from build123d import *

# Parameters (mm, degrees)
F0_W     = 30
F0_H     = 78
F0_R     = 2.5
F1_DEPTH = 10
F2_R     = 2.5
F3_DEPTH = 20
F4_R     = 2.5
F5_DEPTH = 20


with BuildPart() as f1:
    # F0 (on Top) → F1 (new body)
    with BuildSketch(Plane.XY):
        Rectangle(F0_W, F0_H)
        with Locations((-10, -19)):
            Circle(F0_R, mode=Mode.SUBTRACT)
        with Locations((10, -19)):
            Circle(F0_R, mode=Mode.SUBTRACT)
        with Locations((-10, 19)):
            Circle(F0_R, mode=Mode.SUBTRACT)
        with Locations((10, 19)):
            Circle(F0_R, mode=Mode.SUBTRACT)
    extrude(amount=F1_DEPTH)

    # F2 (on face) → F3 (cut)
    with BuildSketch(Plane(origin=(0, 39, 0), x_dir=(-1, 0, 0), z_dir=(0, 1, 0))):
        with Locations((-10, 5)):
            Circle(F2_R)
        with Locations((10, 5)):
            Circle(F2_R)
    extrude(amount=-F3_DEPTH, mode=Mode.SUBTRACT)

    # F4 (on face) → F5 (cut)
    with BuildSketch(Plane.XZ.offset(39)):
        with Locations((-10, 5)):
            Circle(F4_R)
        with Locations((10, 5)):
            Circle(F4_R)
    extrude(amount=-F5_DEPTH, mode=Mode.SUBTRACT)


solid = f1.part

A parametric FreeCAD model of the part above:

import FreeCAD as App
import Part
import Sketcher
from FreeCAD import Vector
Q = App.Units.Quantity


def add_polygon(sketch, points):
    """Adds a closed chain of lines whose ends are joined by coincident constraints."""
    first, n = sketch.GeometryCount, len(points)
    for a, b in zip(points, points[1:] + points[:1]):
        sketch.addGeometry(Part.LineSegment(App.Vector(*a, 0), App.Vector(*b, 0)), False)
    for i in range(n):
        sketch.addConstraint(Sketcher.Constraint("Coincident", first + i, 2, first + (i + 1) % n, 1))

doc = App.newDocument("Part")
body = doc.addObject("PartDesign::Body", "Body")

sketch1 = body.newObject("Sketcher::SketchObject", "Sketch")
sketch1.AttachmentSupport = (doc.getObject("XY_Plane"), [""])
sketch1.MapMode = "FlatFace"
add_polygon(sketch1, [(-15, 39), (-15, -39), (15, -39), (15, 39)])
sketch1.addGeometry(Part.Circle(Vector(-10, -19, 0), Vector(0, 0, 1), 2.5), False)
sketch1.addGeometry(Part.Circle(Vector(10, -19, 0), Vector(0, 0, 1), 2.5), False)
sketch1.addGeometry(Part.Circle(Vector(-10, 19, 0), Vector(0, 0, 1), 2.5), False)
sketch1.addGeometry(Part.Circle(Vector(10, 19, 0), Vector(0, 0, 1), 2.5), False)
sketch1.addConstraint([
    Sketcher.Constraint("Vertical", 0),
    Sketcher.Constraint("Horizontal", 1),
    Sketcher.Constraint("Vertical", 2),
    Sketcher.Constraint("Horizontal", 3),
    Sketcher.Constraint("Equal", 4, 5),
    Sketcher.Constraint("Equal", 5, 6),
    Sketcher.Constraint("Equal", 6, 7),
    Sketcher.Constraint("Symmetric", 5, 3, 6, 3, -1, 1),
    Sketcher.Constraint("Symmetric", 4, 3, 7, 3, -1, 1),
    Sketcher.Constraint("Symmetric", 0, 2, 2, 2, -1, 1),
    Sketcher.Constraint("Symmetric", 4, 3, 5, 3, -2),
    Sketcher.Constraint("Diameter", 4, Q("5 mm")),
    Sketcher.Constraint("DistanceX", 1, 1, 1, 2, Q("30 mm")),
    Sketcher.Constraint("DistanceY", 0, 2, 0, 1, Q("78 mm")),
    Sketcher.Constraint("DistanceX", 4, 3, -1, 1, Q("10 mm")),
    Sketcher.Constraint("DistanceY", 4, 3, -1, 1, Q("19 mm")),
])
pad1 = body.newObject("PartDesign::Pad", "Pad")
pad1.Profile = sketch1
pad1.Length = 10

sketch2 = body.newObject("Sketcher::SketchObject", "Sketch001")
sketch2.AttachmentSupport = (doc.getObject("XZ_Plane"), [""])
sketch2.MapMode = "FlatFace"
sketch2.AttachmentOffset = App.Placement(Vector(0, 0, -39), App.Rotation())
sketch2.addGeometry([
    Part.Circle(Vector(10, 5, 0), Vector(0, 0, 1), 2.5),
    Part.Circle(Vector(-10, 5, 0), Vector(0, 0, 1), 2.5),
], False)
sketch2.addConstraint([
    Sketcher.Constraint("Equal", 0, 1),
    Sketcher.Constraint("Symmetric", 0, 3, 1, 3, -2),
    Sketcher.Constraint("Diameter", 0, Q("5 mm")),
    Sketcher.Constraint("DistanceX", -1, 1, 0, 3, Q("10 mm")),
    Sketcher.Constraint("DistanceY", -1, 1, 0, 3, Q("5 mm")),
])
pocket1 = body.newObject("PartDesign::Pocket", "Pocket")
pocket1.Profile = sketch2
pocket1.Length = 20
pocket1.Reversed = True

sketch3 = body.newObject("Sketcher::SketchObject", "Sketch002")
sketch3.AttachmentSupport = (doc.getObject("XZ_Plane"), [""])
sketch3.MapMode = "FlatFace"
sketch3.AttachmentOffset = App.Placement(Vector(0, 0, 39), App.Rotation())
sketch3.addGeometry([
    Part.Circle(Vector(-10, 5, 0), Vector(0, 0, 1), 2.5),
    Part.Circle(Vector(10, 5, 0), Vector(0, 0, 1), 2.5),
], False)
sketch3.addConstraint([
    Sketcher.Constraint("Equal", 0, 1),
    Sketcher.Constraint("Symmetric", 0, 3, 1, 3, -2),
    Sketcher.Constraint("Diameter", 0, Q("5 mm")),
    Sketcher.Constraint("DistanceX", 0, 3, -1, 1, Q("10 mm")),
    Sketcher.Constraint("DistanceY", -1, 1, 0, 3, Q("5 mm")),
])
pocket2 = body.newObject("PartDesign::Pocket", "Pocket001")
pocket2.Profile = sketch3
pocket2.Length = 20

doc.recompute()
